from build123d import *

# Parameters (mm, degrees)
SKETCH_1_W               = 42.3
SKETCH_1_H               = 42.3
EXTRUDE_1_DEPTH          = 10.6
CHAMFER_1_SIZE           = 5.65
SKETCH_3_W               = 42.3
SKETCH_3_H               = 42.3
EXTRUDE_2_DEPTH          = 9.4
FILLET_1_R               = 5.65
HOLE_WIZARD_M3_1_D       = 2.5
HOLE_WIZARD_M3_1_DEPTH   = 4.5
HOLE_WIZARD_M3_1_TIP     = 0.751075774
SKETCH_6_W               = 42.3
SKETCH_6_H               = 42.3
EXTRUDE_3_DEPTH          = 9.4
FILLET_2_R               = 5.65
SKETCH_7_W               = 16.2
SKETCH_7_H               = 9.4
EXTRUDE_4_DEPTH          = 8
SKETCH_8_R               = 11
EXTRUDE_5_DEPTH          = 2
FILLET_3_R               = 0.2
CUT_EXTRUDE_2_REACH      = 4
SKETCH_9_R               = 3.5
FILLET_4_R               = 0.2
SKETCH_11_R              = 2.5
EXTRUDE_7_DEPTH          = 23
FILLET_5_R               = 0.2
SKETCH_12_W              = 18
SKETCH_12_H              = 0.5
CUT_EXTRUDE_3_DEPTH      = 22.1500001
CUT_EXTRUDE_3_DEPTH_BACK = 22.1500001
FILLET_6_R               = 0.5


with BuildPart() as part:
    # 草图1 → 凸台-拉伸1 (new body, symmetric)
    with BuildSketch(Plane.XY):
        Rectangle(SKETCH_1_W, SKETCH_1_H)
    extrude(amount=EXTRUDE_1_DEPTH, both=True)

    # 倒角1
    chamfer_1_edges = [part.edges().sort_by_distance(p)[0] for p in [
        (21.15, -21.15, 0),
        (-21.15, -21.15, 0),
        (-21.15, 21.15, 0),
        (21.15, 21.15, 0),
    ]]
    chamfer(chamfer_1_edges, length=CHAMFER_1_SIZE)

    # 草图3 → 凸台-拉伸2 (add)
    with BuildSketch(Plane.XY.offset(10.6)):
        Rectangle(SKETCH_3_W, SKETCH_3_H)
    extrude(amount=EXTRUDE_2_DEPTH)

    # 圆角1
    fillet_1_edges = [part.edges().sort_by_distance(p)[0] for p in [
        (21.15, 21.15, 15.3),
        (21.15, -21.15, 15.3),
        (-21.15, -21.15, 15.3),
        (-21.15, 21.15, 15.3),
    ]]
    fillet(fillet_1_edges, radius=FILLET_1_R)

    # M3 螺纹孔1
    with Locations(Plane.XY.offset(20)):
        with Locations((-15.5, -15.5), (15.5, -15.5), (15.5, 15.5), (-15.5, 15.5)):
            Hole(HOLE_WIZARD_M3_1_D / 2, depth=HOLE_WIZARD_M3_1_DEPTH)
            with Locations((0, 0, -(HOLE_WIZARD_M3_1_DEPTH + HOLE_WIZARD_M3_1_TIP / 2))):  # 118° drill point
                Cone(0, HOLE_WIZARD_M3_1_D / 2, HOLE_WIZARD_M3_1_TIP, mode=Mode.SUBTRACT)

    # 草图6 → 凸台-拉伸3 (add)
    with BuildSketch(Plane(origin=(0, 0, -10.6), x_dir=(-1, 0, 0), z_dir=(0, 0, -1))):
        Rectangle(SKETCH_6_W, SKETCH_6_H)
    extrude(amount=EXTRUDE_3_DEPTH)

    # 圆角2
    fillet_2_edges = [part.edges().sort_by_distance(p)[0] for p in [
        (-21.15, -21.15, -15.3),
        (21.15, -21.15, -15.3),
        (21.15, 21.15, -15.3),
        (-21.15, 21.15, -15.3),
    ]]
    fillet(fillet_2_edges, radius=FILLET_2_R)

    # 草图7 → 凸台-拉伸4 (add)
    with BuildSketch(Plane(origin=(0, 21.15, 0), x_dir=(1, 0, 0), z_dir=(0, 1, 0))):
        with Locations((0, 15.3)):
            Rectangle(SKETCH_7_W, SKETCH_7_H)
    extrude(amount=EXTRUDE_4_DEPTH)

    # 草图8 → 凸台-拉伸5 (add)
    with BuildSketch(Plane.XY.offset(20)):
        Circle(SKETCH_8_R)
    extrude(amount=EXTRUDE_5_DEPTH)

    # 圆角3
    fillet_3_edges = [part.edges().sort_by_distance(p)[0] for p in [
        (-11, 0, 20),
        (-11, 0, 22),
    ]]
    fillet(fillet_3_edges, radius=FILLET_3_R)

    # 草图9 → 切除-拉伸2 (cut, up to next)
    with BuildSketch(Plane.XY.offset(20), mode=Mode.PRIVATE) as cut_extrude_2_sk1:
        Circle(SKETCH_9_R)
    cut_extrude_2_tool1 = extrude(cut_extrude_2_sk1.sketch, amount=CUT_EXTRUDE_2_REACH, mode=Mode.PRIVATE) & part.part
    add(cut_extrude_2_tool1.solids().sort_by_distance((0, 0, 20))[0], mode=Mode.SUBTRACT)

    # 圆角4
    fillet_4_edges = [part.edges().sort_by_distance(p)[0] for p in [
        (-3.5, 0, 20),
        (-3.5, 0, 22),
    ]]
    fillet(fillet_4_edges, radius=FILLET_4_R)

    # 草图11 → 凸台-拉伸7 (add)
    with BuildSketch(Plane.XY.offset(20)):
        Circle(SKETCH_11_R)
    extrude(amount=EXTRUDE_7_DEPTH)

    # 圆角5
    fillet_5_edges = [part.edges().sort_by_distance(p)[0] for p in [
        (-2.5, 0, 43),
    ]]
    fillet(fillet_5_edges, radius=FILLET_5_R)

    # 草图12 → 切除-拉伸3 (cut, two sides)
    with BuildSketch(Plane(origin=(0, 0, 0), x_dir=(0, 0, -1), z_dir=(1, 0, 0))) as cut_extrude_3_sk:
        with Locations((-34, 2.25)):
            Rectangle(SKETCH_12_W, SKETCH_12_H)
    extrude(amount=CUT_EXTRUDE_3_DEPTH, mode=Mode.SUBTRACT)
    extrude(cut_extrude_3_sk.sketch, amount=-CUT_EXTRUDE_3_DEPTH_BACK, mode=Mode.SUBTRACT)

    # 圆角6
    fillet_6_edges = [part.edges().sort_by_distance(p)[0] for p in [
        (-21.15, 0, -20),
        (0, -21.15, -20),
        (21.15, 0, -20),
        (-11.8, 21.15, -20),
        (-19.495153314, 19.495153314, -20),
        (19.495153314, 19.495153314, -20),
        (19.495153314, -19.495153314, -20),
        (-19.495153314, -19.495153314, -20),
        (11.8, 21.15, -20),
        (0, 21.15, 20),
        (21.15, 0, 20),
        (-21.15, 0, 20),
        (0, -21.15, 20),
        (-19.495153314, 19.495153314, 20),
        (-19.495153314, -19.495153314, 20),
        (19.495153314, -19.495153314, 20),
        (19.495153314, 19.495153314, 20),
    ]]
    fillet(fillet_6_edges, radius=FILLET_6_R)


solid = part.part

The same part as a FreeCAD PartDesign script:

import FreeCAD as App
import Part
import Sketcher


def edges_at(feature, points):
    """Names of the edges that pass closest to the given points."""
    edges = feature.Shape.Edges
    near = lambda p: min(range(len(edges)), key=lambda i: edges[i].distToShape(Part.Vertex(*p))[0])
    return sorted({f"Edge{near(p) + 1}" for p in points})

doc = App.newDocument("Part")
body = doc.addObject("PartDesign::Body", "Body")

# Sketch on XY plane
sketch1 = body.newObject("Sketcher::SketchObject", "Sketch")
sketch1.AttachmentSupport = (doc.getObject("XY_Plane"), [""])
sketch1.MapMode = "FlatFace"
sketch1.addGeometry(Part.LineSegment(App.Vector(-21.15, 21.15, 0), App.Vector(-21.15, -21.15, 0)), False)
sketch1.addGeometry(Part.LineSegment(App.Vector(-21.15, -21.15, 0), App.Vector(21.15, -21.15, 0)), False)
sketch1.addGeometry(Part.LineSegment(App.Vector(21.15, -21.15, 0), App.Vector(21.15, 21.15, 0)), False)
sketch1.addGeometry(Part.LineSegment(App.Vector(21.15, 21.15, 0), App.Vector(-21.15, 21.15, 0)), False)
sketch1.addConstraint(Sketcher.Constraint("Coincident", 0, 2, 1, 1))
sketch1.addConstraint(Sketcher.Constraint("Coincident", 1, 2, 2, 1))
sketch1.addConstraint(Sketcher.Constraint("Coincident", 2, 2, 3, 1))
sketch1.addConstraint(Sketcher.Constraint("Coincident", 3, 2, 0, 1))
sketch1.addConstraint(Sketcher.Constraint("Vertical", 0))
sketch1.addConstraint(Sketcher.Constraint("Horizontal", 1))
sketch1.addConstraint(Sketcher.Constraint("Vertical", 2))
sketch1.addConstraint(Sketcher.Constraint("Horizontal", 3))
sketch1.addConstraint(Sketcher.Constraint("Symmetric", 0, 2, 2, 2, -1, 1))
sketch1.addConstraint(Sketcher.Constraint("Equal", 3, 0))
sketch1.addConstraint(Sketcher.Constraint("DistanceX", 1, 1, 1, 2, 42.3))
pad1 = body.newObject("PartDesign::Pad", "Pad")
pad1.Profile = sketch1
pad1.Length = 21.2
pad1.Midplane = True
doc.recompute()

chamfer = body.newObject("PartDesign::Chamfer", "Chamfer")
chamfer.Base = (pad1, edges_at(pad1, [
    (21.15, -21.15, 0),
    (-21.15, -21.15, 0),
    (-21.15, 21.15, 0),
    (21.15, 21.15, 0),
]))
chamfer.Size = 5.65

# Sketch on XY plane
sketch2 = body.newObject("Sketcher::SketchObject", "Sketch001")
sketch2.AttachmentSupport = (doc.getObject("XY_Plane"), [""])
sketch2.MapMode = "FlatFace"
sketch2.AttachmentOffset = App.Placement(App.Vector(0, 0, 10.6), App.Rotation())
sketch2.addGeometry(Part.LineSegment(App.Vector(-21.15, 21.15, 0), App.Vector(-21.15, -21.15, 0)), False)
sketch2.addGeometry(Part.LineSegment(App.Vector(-21.15, -21.15, 0), App.Vector(21.15, -21.15, 0)), False)
sketch2.addGeometry(Part.LineSegment(App.Vector(21.15, -21.15, 0), App.Vector(21.15, 21.15, 0)), False)
sketch2.addGeometry(Part.LineSegment(App.Vector(21.15, 21.15, 0), App.Vector(-21.15, 21.15, 0)), False)
sketch2.addConstraint(Sketcher.Constraint("Coincident", 0, 2, 1, 1))
sketch2.addConstraint(Sketcher.Constraint("Coincident", 1, 2, 2, 1))
sketch2.addConstraint(Sketcher.Constraint("Coincident", 2, 2, 3, 1))
sketch2.addConstraint(Sketcher.Constraint("Coincident", 3, 2, 0, 1))
sketch2.addConstraint(Sketcher.Constraint("Vertical", 0))
sketch2.addConstraint(Sketcher.Constraint("Horizontal", 1))
sketch2.addConstraint(Sketcher.Constraint("Vertical", 2))
sketch2.addConstraint(Sketcher.Constraint("Horizontal", 3))
sketch2.addConstraint(Sketcher.Constraint("Symmetric", 0, 2, 2, 2, -1, 1))
sketch2.addConstraint(Sketcher.Constraint("Equal", 3, 0))
sketch2.addConstraint(Sketcher.Constraint("DistanceX", 1, 1, 1, 2, 42.3))
pad2 = body.newObject("PartDesign::Pad", "Pad001")
pad2.Profile = sketch2
pad2.Length = 9.4
doc.recompute()

fillet = body.newObject("PartDesign::Fillet", "Fillet")
fillet.Base = (pad2, edges_at(pad2, [
    (21.15, 21.15, 15.3),
    (21.15, -21.15, 15.3),
    (-21.15, -21.15, 15.3),
    (-21.15, 21.15, 15.3),
]))
fillet.Radius = 5.65

# Sketch on XY plane
sketch3 = body.newObject("Sketcher::SketchObject", "Sketch002")
sketch3.AttachmentSupport = (doc.getObject("XY_Plane"), [""])
sketch3.MapMode = "FlatFace"
sketch3.AttachmentOffset = App.Placement(App.Vector(0, 0, 20), App.Rotation())
sketch3.addGeometry(Part.Circle(App.Vector(-15.5, -15.5, 0), App.Vector(0, 0, 1), 1.25), False)
sketch3.addGeometry(Part.Circle(App.Vector(15.5, -15.5, 0), App.Vector(0, 0, 1), 1.25), False)
sketch3.addGeometry(Part.Circle(App.Vector(15.5, 15.5, 0), App.Vector(0, 0, 1), 1.25), False)
sketch3.addGeometry(Part.Circle(App.Vector(-15.5, 15.5, 0), App.Vector(0, 0, 1), 1.25), False)
sketch3.addConstraint(Sketcher.Constraint("Equal", 0, 1))
sketch3.addConstraint(Sketcher.Constraint("Equal", 1, 2))
sketch3.addConstraint(Sketcher.Constraint("Equal", 2, 3))
sketch3.addConstraint(Sketcher.Constraint("Symmetric", 0, 3, 2, 3, -1, 1))
sketch3.addConstraint(Sketcher.Constraint("Symmetric", 1, 3, 3, 3, -1, 1))
sketch3.addConstraint(Sketcher.Constraint("Symmetric", 0, 3, 1, 3, -2))
sketch3.addConstraint(Sketcher.Constraint("Diameter", 0, 2.5))
sketch3.addConstraint(Sketcher.Constraint("DistanceX", 0, 3, 1, 3, 31.0))
sketch3.addConstraint(Sketcher.Constraint("DistanceY", 1, 3, 2, 3, 31.0))
doc.recompute()
hole = body.newObject("PartDesign::Hole", "Hole")
hole.Profile = sketch3
hole.ThreadType = "None"
hole.Diameter = 2.5
hole.DepthType = "Dimension"
hole.Depth = 4.5
hole.DrillPoint = "Angled"
hole.DrillPointAngle = 118

# Sketch on XY plane
sketch4 = body.newObject("Sketcher::SketchObject", "Sketch003")
sketch4.AttachmentSupport = (doc.getObject("XY_Plane"), [""])
sketch4.MapMode = "FlatFace"
sketch4.AttachmentOffset = App.Placement(App.Vector(0, 0, -10.6), App.Rotation())
sketch4.addGeometry(Part.LineSegment(App.Vector(21.15, 21.15, 0), App.Vector(21.15, -21.15, 0)), False)
sketch4.addGeometry(Part.LineSegment(App.Vector(21.15, -21.15, 0), App.Vector(-21.15, -21.15, 0)), False)
sketch4.addGeometry(Part.LineSegment(App.Vector(-21.15, -21.15, 0), App.Vector(-21.15, 21.15, 0)), False)
sketch4.addGeometry(Part.LineSegment(App.Vector(-21.15, 21.15, 0), App.Vector(21.15, 21.15, 0)), False)
sketch4.addConstraint(Sketcher.Constraint("Coincident", 0, 2, 1, 1))
sketch4.addConstraint(Sketcher.Constraint("Coincident", 1, 2, 2, 1))
sketch4.addConstraint(Sketcher.Constraint("Coincident", 2, 2, 3, 1))
sketch4.addConstraint(Sketcher.Constraint("Coincident", 3, 2, 0, 1))
sketch4.addConstraint(Sketcher.Constraint("Vertical", 0))
sketch4.addConstraint(Sketcher.Constraint("Horizontal", 1))
sketch4.addConstraint(Sketcher.Constraint("Vertical", 2))
sketch4.addConstraint(Sketcher.Constraint("Horizontal", 3))
sketch4.addConstraint(Sketcher.Constraint("Symmetric", 0, 2, 2, 2, -1, 1))
sketch4.addConstraint(Sketcher.Constraint("Equal", 3, 0))
sketch4.addConstraint(Sketcher.Constraint("DistanceX", 1, 2, 1, 1, 42.3))
pad3 = body.newObject("PartDesign::Pad", "Pad002")
pad3.Profile = sketch4
pad3.Length = 9.4
pad3.Reversed = True
doc.recompute()

fillet2 = body.newObject("PartDesign::Fillet", "Fillet001")
fillet2.Base = (pad3, edges_at(pad3, [
    (-21.15, -21.15, -15.3),
    (21.15, -21.15, -15.3),
    (21.15, 21.15, -15.3),
    (-21.15, 21.15, -15.3),
]))
fillet2.Radius = 5.65

# Sketch on XZ plane
sketch5 = body.newObject("Sketcher::SketchObject", "Sketch004")
sketch5.AttachmentSupport = (doc.getObject("XZ_Plane"), [""])
sketch5.MapMode = "FlatFace"
sketch5.AttachmentOffset = App.Placement(App.Vector(0, 0, -21.15), App.Rotation())
sketch5.addGeometry(Part.LineSegment(App.Vector(-8.1, -20, 0), App.Vector(-8.1, -10.6, 0)), False)
sketch5.addGeometry(Part.LineSegment(App.Vector(-8.1, -10.6, 0), App.Vector(8.1, -10.6, 0)), False)
sketch5.addGeometry(Part.LineSegment(App.Vector(8.1, -10.6, 0), App.Vector(8.1, -20, 0)), False)
sketch5.addGeometry(Part.LineSegment(App.Vector(8.1, -20, 0), App.Vector(-8.1, -20, 0)), False)
sketch5.addConstraint(Sketcher.Constraint("Coincident", 0, 2, 1, 1))
sketch5.addConstraint(Sketcher.Constraint("Coincident", 1, 2, 2, 1))
sketch5.addConstraint(Sketcher.Constraint("Coincident", 2, 2, 3, 1))
sketch5.addConstraint(Sketcher.Constraint("Coincident", 3, 2, 0, 1))
sketch5.addConstraint(Sketcher.Constraint("Vertical", 0))
sketch5.addConstraint(Sketcher.Constraint("Horizontal", 1))
sketch5.addConstraint(Sketcher.Constraint("Vertical", 2))
sketch5.addConstraint(Sketcher.Constraint("Horizontal", 3))
sketch5.addConstraint(Sketcher.Constraint("DistanceX", 1, 1, 1, 2, 16.2))
sketch5.addConstraint(Sketcher.Constraint("DistanceY", 0, 1, 0, 2, 9.4))
sketch5.addConstraint(Sketcher.Constraint("DistanceY", 2, 2, -1, 1, 20.0))
sketch5.addConstraint(Sketcher.Constraint("DistanceX", 0, 2, -1, 1, 8.1))
pad4 = body.newObject("PartDesign::Pad", "Pad003")
pad4.Profile = sketch5
pad4.Length = 8
pad4.Reversed = True

# Sketch on XY plane
sketch6 = body.newObject("Sketcher::SketchObject", "Sketch005")
sketch6.AttachmentSupport = (doc.getObject("XY_Plane"), [""])
sketch6.MapMode = "FlatFace"
sketch6.AttachmentOffset = App.Placement(App.Vector(0, 0, 20), App.Rotation())
sketch6.addGeometry(Part.Circle(App.Vector(0, 0, 0), App.Vector(0, 0, 1), 11), False)
sketch6.addConstraint(Sketcher.Constraint("Coincident", 0, 3, -1, 1))
sketch6.addConstraint(Sketcher.Constraint("Diameter", 0, 22.0))
pad5 = body.newObject("PartDesign::Pad", "Pad004")
pad5.Profile = sketch6
pad5.Length = 2
doc.recompute()

fillet3 = body.newObject("PartDesign::Fillet", "Fillet002")
fillet3.Base = (pad5, edges_at(pad5, [(-11, 0, 20), (-11, 0, 22)]))
fillet3.Radius = 0.2

# Sketch on XY plane
sketch7 = body.newObject("Sketcher::SketchObject", "Sketch006")
sketch7.AttachmentSupport = (doc.getObject("XY_Plane"), [""])
sketch7.MapMode = "FlatFace"
sketch7.AttachmentOffset = App.Placement(App.Vector(0, 0, 20), App.Rotation())
sketch7.addGeometry(Part.Circle(App.Vector(0, 0, 0), App.Vector(0, 0, 1), 3.5), False)
sketch7.addConstraint(Sketcher.Constraint("Coincident", 0, 3, -1, 1))
sketch7.addConstraint(Sketcher.Constraint("Diameter", 0, 7.0))
pocket1 = body.newObject("PartDesign::Pocket", "Pocket")
pocket1.Profile = sketch7
pocket1.Type = "UpToFirst"
pocket1.Reversed = True
doc.recompute()

fillet4 = body.newObject("PartDesign::Fillet", "Fillet003")
fillet4.Base = (pocket1, edges_at(pocket1, [(-3.5, 0, 20), (-3.5, 0, 22)]))
fillet4.Radius = 0.2

# Sketch on XY plane
sketch8 = body.newObject("Sketcher::SketchObject", "Sketch007")
sketch8.AttachmentSupport = (doc.getObject("XY_Plane"), [""])
sketch8.MapMode = "FlatFace"
sketch8.AttachmentOffset = App.Placement(App.Vector(0, 0, 20), App.Rotation())
sketch8.addGeometry(Part.Circle(App.Vector(0, 0, 0), App.Vector(0, 0, 1), 2.5), False)
sketch8.addConstraint(Sketcher.Constraint("Coincident", 0, 3, -1, 1))
sketch8.addConstraint(Sketcher.Constraint("Diameter", 0, 5.0))
pad6 = body.newObject("PartDesign::Pad", "Pad005")
pad6.Profile = sketch8
pad6.Length = 23
doc.recompute()

fillet5 = body.newObject("PartDesign::Fillet", "Fillet004")
fillet5.Base = (pad6, edges_at(pad6, [(-2.5, 0, 43)]))
fillet5.Radius = 0.2

# Sketch on YZ plane
sketch9 = body.newObject("Sketcher::SketchObject", "Sketch008")
sketch9.AttachmentSupport = (doc.getObject("YZ_Plane"), [""])
sketch9.MapMode = "FlatFace"
sketch9.addGeometry(Part.LineSegment(App.Vector(2.5, 43, 0), App.Vector(2, 43, 0)), False)
sketch9.addGeometry(Part.LineSegment(App.Vector(2, 43, 0), App.Vector(2, 25, 0)), False)
sketch9.addGeometry(Part.LineSegment(App.Vector(2, 25, 0), App.Vector(2.5, 25, 0)), False)
sketch9.addGeometry(Part.LineSegment(App.Vector(2.5, 25, 0), App.Vector(2.5, 43, 0)), False)
sketch9.addConstraint(Sketcher.Constraint("Coincident", 0, 2, 1, 1))
sketch9.addConstraint(Sketcher.Constraint("Coincident", 1, 2, 2, 1))
sketch9.addConstraint(Sketcher.Constraint("Coincident", 2, 2, 3, 1))
sketch9.addConstraint(Sketcher.Constraint("Coincident", 3, 2, 0, 1))
sketch9.addConstraint(Sketcher.Constraint("Horizontal", 0))
sketch9.addConstraint(Sketcher.Constraint("Vertical", 1))
sketch9.addConstraint(Sketcher.Constraint("Horizontal", 2))
sketch9.addConstraint(Sketcher.Constraint("Vertical", 3))
sketch9.addConstraint(Sketcher.Constraint("DistanceY", 1, 2, 1, 1, 18.0))
sketch9.addConstraint(Sketcher.Constraint("DistanceX", 0, 2, 0, 1, 0.5))
sketch9.addConstraint(Sketcher.Constraint("DistanceX", -1, 1, 0, 2, 2.0))
sketch9.addConstraint(Sketcher.Constraint("DistanceY", -1, 1, 0, 2, 43.0))
pocket2 = body.newObject("PartDesign::Pocket", "Pocket001")
pocket2.Profile = sketch9
pocket2.Type = "ThroughAll"
pocket2.Midplane = True
doc.recompute()

fillet6 = body.newObject("PartDesign::Fillet", "Fillet005")
fillet6.Base = (pocket2, edges_at(pocket2, [
    (-21.15, 0, -20),
    (0, -21.15, -20),
    (21.15, 0, -20),
    (-11.8, 21.15, -20),
    (-19.495, 19.495, -20),
    (19.495, 19.495, -20),
    (19.495, -19.495, -20),
    (-19.495, -19.495, -20),
    (11.8, 21.15, -20),
    (0, 21.15, 20),
    (21.15, 0, 20),
    (-21.15, 0, 20),
    (0, -21.15, 20),
    (-19.495, 19.495, 20),
    (-19.495, -19.495, 20),
    (19.495, -19.495, 20),
    (19.495, 19.495, 20),
]))
fillet6.Radius = 0.5

doc.recompute()
